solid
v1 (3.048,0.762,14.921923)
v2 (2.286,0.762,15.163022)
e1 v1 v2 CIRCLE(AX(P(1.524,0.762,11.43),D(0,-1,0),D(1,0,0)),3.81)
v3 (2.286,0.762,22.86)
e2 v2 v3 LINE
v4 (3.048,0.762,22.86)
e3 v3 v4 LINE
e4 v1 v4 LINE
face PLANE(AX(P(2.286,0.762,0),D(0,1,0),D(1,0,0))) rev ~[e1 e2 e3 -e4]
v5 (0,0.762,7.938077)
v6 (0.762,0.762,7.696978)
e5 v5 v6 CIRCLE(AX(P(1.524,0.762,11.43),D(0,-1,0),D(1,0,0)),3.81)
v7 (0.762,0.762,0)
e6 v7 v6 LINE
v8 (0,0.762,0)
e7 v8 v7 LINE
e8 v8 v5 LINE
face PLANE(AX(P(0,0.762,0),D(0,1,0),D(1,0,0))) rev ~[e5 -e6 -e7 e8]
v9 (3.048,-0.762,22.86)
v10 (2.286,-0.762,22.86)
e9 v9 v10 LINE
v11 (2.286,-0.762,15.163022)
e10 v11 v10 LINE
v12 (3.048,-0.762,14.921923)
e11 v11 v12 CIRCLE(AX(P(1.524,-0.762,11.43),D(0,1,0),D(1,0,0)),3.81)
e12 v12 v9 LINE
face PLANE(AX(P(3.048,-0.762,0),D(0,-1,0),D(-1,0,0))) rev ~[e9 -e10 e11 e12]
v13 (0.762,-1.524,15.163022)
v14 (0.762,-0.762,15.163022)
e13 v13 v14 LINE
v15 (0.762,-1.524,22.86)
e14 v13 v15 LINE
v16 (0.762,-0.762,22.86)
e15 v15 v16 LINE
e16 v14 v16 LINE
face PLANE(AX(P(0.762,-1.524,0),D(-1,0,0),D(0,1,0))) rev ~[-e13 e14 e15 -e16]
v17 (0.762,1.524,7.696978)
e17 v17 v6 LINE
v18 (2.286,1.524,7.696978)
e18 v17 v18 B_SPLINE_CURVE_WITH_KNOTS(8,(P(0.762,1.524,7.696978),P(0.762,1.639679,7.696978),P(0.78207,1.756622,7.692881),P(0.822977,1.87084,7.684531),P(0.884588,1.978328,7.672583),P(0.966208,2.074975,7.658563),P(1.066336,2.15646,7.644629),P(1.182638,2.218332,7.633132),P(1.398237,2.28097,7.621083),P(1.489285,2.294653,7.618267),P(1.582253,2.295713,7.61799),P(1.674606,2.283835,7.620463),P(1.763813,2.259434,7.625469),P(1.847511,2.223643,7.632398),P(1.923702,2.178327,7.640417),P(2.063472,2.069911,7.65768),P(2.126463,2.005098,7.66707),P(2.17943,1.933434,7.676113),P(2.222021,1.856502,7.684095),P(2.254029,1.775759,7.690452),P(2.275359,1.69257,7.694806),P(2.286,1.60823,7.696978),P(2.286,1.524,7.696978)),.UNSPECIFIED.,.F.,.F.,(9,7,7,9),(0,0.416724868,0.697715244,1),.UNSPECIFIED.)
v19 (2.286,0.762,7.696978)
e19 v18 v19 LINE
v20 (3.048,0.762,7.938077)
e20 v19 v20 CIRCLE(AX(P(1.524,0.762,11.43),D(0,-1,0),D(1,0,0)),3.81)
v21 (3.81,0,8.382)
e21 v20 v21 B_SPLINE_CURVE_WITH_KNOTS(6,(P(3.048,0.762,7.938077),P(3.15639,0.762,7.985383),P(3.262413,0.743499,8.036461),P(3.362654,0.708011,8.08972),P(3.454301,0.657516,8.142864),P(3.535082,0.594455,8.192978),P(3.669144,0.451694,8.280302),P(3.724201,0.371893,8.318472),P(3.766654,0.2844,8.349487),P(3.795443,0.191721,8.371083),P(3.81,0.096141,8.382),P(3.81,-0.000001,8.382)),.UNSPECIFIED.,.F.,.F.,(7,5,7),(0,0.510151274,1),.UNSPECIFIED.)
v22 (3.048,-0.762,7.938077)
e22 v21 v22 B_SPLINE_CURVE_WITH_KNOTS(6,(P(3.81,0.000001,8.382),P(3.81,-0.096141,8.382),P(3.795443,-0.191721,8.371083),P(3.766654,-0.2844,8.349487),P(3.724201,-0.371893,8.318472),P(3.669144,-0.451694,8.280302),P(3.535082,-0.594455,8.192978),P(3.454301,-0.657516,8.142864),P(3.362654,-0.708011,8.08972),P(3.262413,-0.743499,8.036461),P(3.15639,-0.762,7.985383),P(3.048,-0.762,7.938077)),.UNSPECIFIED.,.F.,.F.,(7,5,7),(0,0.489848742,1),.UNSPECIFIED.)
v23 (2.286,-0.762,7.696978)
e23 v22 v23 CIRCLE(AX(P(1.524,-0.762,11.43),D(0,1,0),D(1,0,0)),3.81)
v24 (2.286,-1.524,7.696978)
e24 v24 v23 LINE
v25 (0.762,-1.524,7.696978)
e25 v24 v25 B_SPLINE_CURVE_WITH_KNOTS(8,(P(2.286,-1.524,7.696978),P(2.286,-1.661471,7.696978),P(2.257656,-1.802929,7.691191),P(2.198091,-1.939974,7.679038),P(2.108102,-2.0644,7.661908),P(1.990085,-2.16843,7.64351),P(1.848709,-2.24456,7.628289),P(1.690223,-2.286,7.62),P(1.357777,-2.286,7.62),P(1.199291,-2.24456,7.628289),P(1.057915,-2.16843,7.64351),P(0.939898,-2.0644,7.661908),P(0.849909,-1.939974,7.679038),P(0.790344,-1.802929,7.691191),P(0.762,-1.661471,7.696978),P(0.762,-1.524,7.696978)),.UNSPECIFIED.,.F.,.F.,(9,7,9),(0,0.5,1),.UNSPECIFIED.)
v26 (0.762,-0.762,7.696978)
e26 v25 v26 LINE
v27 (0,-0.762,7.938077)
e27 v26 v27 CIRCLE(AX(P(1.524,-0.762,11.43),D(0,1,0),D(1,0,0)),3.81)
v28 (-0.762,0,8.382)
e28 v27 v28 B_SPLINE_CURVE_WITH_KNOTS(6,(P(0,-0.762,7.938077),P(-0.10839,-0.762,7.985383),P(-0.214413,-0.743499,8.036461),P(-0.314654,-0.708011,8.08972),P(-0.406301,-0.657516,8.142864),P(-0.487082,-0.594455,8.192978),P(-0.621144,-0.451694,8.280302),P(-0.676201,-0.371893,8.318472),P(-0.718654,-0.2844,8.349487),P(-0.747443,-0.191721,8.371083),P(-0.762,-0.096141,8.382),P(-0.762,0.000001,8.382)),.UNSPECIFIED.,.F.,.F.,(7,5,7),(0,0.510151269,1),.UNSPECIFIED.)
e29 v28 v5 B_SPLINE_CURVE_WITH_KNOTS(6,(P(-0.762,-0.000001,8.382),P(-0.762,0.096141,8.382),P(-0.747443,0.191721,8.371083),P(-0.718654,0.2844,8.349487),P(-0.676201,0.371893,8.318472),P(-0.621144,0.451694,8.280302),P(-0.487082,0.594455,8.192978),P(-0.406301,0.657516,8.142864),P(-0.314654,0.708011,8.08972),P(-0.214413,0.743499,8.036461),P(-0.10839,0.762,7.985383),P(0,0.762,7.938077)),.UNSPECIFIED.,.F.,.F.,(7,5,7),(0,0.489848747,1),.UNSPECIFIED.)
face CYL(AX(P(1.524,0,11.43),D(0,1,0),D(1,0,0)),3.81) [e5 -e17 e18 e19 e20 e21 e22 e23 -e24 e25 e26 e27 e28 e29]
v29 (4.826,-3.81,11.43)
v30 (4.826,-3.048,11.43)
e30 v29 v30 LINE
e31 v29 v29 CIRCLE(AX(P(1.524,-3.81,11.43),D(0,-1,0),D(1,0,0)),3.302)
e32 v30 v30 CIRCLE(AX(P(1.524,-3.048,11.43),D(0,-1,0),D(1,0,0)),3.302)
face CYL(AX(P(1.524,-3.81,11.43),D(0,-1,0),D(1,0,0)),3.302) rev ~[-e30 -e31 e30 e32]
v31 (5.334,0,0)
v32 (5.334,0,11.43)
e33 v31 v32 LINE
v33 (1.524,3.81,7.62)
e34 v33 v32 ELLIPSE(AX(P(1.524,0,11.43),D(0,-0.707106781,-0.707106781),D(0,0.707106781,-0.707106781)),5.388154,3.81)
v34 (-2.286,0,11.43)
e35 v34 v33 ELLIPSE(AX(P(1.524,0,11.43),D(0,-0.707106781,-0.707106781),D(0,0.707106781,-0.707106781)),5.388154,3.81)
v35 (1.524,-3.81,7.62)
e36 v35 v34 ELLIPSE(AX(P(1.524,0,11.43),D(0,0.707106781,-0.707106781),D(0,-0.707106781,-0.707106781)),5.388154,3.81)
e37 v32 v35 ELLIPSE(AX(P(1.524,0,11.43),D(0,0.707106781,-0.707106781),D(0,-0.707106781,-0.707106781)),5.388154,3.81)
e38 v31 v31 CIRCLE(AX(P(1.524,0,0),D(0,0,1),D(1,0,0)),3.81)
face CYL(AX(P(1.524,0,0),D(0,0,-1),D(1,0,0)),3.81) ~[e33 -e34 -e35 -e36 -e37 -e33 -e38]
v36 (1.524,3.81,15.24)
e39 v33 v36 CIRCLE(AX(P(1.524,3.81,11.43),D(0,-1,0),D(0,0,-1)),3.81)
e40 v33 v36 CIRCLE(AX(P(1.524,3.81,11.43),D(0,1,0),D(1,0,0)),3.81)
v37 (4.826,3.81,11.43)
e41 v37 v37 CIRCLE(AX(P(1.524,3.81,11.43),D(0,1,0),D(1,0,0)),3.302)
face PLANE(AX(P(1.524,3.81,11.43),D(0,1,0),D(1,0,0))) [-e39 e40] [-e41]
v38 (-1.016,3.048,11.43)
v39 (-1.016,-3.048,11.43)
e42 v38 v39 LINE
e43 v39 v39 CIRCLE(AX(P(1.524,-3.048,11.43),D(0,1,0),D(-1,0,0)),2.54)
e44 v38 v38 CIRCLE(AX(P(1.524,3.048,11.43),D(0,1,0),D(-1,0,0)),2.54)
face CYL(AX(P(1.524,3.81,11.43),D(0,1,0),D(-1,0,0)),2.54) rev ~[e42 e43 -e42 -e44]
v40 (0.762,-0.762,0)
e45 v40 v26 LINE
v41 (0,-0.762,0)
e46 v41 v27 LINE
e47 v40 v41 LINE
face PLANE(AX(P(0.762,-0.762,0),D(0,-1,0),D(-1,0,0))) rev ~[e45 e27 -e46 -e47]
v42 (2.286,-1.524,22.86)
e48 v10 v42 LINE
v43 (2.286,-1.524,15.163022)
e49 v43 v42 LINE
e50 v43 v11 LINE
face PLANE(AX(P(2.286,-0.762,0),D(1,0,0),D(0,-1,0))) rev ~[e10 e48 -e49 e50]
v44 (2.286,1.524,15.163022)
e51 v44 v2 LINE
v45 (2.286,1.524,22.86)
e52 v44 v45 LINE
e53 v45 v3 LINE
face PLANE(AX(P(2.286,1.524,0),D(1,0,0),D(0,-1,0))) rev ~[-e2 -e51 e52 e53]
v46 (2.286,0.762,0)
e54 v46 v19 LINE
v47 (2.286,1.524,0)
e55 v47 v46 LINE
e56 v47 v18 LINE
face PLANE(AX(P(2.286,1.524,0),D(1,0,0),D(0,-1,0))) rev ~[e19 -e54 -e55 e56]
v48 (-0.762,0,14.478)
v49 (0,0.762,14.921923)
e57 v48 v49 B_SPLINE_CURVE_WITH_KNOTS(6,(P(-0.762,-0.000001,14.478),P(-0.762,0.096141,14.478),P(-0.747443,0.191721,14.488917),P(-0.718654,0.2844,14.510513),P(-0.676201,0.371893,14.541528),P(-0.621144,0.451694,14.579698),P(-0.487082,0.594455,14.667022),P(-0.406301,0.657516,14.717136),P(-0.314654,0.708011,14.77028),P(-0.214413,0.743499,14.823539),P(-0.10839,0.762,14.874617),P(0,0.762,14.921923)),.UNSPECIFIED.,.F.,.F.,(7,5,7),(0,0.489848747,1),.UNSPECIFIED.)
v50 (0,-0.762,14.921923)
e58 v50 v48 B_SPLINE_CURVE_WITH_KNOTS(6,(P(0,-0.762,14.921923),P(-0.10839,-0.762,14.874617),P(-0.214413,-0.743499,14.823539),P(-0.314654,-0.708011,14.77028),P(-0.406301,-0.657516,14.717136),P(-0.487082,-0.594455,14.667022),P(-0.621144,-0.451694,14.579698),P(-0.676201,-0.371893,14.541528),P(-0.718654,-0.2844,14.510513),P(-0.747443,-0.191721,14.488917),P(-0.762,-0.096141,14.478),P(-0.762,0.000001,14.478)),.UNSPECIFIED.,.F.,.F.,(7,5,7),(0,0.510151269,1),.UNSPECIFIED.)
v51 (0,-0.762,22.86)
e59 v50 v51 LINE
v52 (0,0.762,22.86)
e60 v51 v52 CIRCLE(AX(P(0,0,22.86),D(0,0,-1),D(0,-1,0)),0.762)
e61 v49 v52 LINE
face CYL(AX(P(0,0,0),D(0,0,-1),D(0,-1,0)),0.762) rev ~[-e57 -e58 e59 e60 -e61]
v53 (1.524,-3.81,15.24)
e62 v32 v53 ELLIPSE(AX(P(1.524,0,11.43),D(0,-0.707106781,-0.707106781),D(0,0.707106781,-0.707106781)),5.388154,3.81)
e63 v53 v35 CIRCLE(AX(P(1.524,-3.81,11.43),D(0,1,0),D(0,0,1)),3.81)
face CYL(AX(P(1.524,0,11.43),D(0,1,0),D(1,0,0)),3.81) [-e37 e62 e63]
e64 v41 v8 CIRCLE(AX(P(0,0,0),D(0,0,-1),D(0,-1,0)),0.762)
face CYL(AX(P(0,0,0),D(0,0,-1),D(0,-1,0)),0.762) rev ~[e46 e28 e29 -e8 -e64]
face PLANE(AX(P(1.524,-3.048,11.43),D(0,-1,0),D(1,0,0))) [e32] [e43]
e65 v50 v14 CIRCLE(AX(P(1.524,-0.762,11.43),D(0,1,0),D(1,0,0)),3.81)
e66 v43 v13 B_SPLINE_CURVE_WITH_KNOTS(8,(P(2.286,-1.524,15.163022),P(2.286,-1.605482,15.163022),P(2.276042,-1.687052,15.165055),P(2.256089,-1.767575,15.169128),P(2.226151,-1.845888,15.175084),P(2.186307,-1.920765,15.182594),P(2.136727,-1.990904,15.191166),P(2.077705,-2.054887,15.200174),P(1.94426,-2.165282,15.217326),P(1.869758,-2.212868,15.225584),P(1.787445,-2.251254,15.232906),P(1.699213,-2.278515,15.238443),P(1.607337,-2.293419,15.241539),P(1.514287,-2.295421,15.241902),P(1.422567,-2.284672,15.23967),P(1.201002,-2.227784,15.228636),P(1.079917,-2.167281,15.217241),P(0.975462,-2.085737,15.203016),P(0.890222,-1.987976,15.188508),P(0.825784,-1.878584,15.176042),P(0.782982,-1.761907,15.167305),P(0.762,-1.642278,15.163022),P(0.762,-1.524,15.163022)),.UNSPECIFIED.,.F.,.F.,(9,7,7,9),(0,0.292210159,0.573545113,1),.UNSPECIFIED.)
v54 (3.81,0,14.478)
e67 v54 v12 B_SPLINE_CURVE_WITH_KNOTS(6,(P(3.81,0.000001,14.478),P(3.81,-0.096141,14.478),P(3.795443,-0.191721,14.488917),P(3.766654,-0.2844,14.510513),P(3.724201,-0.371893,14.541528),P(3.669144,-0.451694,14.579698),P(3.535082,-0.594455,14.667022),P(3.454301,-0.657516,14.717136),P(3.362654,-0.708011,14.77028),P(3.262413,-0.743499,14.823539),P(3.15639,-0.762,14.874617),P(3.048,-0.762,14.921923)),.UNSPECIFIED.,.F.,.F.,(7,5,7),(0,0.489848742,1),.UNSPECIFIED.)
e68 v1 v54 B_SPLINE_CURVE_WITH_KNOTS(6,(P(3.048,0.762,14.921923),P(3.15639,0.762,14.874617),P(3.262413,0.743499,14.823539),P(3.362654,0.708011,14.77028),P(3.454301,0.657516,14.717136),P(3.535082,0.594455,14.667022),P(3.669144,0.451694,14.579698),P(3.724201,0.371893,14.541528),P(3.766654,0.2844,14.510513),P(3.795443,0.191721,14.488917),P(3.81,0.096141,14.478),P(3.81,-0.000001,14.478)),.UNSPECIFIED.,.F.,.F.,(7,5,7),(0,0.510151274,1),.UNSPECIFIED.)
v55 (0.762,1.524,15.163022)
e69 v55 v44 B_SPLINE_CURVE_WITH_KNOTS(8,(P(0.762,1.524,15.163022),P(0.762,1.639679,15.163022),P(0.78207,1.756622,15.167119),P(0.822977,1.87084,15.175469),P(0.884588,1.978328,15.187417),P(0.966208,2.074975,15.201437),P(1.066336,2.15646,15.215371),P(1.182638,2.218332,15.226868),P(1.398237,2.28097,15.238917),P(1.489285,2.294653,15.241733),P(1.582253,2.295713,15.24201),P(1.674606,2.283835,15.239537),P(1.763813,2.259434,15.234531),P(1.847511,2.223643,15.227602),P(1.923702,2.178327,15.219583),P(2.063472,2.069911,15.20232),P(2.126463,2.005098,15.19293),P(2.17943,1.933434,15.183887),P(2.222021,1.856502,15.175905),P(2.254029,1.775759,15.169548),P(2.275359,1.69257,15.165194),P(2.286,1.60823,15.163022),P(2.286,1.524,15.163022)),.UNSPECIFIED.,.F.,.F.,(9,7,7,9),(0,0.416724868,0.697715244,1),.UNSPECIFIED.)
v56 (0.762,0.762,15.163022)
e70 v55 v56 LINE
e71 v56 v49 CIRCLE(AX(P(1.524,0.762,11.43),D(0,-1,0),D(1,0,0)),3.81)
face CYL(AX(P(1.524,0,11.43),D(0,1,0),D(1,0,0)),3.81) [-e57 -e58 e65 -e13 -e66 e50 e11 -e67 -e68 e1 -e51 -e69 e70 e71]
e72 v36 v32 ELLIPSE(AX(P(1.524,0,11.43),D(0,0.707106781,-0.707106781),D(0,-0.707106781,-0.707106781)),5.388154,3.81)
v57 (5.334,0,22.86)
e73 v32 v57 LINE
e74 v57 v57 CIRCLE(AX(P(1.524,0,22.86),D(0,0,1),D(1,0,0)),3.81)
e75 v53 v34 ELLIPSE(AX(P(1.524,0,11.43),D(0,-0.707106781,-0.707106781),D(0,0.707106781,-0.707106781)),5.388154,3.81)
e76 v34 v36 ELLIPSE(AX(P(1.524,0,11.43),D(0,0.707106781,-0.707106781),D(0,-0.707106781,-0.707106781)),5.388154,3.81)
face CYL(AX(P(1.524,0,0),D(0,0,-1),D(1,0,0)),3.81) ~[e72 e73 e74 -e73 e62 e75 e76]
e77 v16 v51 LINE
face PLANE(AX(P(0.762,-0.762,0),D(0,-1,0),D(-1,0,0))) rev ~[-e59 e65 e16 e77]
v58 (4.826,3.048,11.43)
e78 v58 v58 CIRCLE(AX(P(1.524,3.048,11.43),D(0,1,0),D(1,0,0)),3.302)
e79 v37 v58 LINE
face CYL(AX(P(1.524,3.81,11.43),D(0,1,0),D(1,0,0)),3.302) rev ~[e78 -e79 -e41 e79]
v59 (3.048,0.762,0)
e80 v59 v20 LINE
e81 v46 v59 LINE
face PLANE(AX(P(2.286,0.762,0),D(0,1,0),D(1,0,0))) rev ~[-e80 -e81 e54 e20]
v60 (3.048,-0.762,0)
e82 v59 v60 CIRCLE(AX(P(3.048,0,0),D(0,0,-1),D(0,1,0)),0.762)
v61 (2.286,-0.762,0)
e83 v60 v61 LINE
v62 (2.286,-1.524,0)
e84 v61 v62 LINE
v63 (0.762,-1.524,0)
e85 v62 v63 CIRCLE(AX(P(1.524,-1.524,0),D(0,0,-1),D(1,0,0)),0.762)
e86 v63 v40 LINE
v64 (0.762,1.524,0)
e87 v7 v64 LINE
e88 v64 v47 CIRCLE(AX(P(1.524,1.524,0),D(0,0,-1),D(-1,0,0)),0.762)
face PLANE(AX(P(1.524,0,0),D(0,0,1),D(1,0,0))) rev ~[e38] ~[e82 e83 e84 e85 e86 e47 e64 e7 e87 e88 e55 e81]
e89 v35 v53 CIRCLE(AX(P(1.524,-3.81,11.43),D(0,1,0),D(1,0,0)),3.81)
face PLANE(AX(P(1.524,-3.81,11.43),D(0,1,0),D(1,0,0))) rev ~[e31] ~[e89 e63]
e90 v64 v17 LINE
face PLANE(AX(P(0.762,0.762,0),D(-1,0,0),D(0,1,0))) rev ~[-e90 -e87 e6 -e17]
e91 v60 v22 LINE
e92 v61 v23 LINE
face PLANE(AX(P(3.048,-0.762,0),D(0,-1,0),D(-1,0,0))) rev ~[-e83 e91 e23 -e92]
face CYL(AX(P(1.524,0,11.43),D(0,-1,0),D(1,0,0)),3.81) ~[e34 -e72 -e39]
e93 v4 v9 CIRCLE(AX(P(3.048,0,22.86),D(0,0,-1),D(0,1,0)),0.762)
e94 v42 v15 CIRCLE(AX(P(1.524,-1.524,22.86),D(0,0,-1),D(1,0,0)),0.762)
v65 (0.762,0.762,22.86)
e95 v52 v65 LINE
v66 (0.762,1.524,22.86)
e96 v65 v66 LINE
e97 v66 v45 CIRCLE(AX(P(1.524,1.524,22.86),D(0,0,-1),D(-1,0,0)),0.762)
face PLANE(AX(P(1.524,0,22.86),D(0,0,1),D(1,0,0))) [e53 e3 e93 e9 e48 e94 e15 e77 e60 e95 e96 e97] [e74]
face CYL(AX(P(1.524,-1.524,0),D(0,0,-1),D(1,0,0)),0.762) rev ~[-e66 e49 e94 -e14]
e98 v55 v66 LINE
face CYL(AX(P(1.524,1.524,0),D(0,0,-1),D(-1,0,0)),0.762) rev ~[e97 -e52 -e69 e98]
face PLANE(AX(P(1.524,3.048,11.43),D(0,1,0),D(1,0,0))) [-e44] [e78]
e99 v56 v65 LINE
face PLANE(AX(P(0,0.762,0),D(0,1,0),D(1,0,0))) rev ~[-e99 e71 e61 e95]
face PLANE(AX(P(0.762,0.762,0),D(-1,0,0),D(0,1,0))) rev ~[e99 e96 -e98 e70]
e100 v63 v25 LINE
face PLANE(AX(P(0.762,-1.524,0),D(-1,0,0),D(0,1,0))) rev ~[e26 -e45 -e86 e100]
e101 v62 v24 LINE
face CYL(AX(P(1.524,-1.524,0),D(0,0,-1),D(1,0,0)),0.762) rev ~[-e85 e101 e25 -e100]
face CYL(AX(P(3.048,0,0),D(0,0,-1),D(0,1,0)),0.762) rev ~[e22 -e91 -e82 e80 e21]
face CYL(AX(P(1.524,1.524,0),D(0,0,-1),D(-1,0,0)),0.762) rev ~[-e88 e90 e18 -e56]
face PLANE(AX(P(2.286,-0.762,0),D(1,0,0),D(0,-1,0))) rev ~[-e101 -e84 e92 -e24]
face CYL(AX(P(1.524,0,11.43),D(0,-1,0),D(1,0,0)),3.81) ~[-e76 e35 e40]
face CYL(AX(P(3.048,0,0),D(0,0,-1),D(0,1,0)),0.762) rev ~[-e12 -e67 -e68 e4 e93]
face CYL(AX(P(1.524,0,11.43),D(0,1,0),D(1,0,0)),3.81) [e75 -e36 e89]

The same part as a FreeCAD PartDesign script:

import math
import FreeCAD as App
import Part
import Sketcher

V = App.Vector
Q = App.Units.Quantity

doc = App.newDocument("Part")
body = doc.addObject("PartDesign::Body", "Body")

sketch1 = body.newObject("Sketcher::SketchObject", "Sketch")
sketch1.AttachmentSupport = (doc.getObject("XY_Plane"), [""])
sketch1.MapMode = "FlatFace"
sketch1.addGeometry([
    Part.Circle(V(1.5, 0, 0), V(0, 0, 1), 3.8),
    Part.LineSegment(V(0.8, -0.8, 0), V(0, -0.8, 0)),
    Part.ArcOfCircle(Part.Circle(V(0, 0, 0), V(0, 0, 1), 0.8), math.radians(90), math.radians(270)),
    Part.LineSegment(V(0, 0.8, 0), V(0.8, 0.8, 0)),
    Part.LineSegment(V(0.8, 0.8, 0), V(0.8, 1.5, 0)),
    Part.ArcOfCircle(Part.Circle(V(1.5, 1.5, 0), V(0, 0, 1), 0.8), math.radians(0), math.radians(180)),
    Part.LineSegment(V(2.3, 1.5, 0), V(2.3, 0.8, 0)),
    Part.LineSegment(V(2.3, 0.8, 0), V(3, 0.8, 0)),
    Part.ArcOfCircle(Part.Circle(V(3, 0, 0), V(0, 0, 1), 0.8), math.radians(-90), math.radians(90)),
    Part.LineSegment(V(3, -0.8, 0), V(2.3, -0.8, 0)),
    Part.LineSegment(V(2.3, -0.8, 0), V(2.3, -1.5, 0)),
    Part.ArcOfCircle(Part.Circle(V(1.5, -1.5, 0), V(0, 0, 1), 0.8), math.radians(180), math.radians(360)),
    Part.LineSegment(V(0.8, -1.5, 0), V(0.8, -0.8, 0)),
], False)
sketch1.addConstraint([
    Sketcher.Constraint("Tangent", 1, 2, 2, 2),
    Sketcher.Constraint("Tangent", 2, 1, 3, 1),
    Sketcher.Constraint("Coincident", 3, 2, 4, 1),
    Sketcher.Constraint("Tangent", 4, 2, 5, 2),
    Sketcher.Constraint("Tangent", 5, 1, 6, 1),
    Sketcher.Constraint("Coincident", 6, 2, 7, 1),
    Sketcher.Constraint("Tangent", 7, 2, 8, 2),
    Sketcher.Constraint("Tangent", 8, 1, 9, 1),
    Sketcher.Constraint("Coincident", 9, 2, 10, 1),
    Sketcher.Constraint("Tangent", 10, 2, 11, 2),
    Sketcher.Constraint("Tangent", 11, 1, 12, 1),
    Sketcher.Constraint("Coincident", 12, 2, 1, 1),
    Sketcher.Constraint("Horizontal", 1),
    Sketcher.Constraint("Horizontal", 3),
    Sketcher.Constraint("Vertical", 4),
    Sketcher.Constraint("Vertical", 6),
    Sketcher.Constraint("Horizontal", 7),
    Sketcher.Constraint("Horizontal", 9),
    Sketcher.Constraint("Vertical", 10),
    Sketcher.Constraint("Vertical", 12),
    Sketcher.Constraint("Coincident", 2, 3, -1, 1),
    Sketcher.Constraint("Equal", 2, 5),
    Sketcher.Constraint("Equal", 5, 8),
    Sketcher.Constraint("Equal", 8, 11),
    Sketcher.Constraint("Symmetric", 5, 3, 11, 3, -1),
    Sketcher.Constraint("PointOnObject", 0, 3, -1),
    Sketcher.Constraint("PointOnObject", 8, 3, -1),
    Sketcher.Constraint("Vertical", 0, 3, 5, 3),
    Sketcher.Constraint("Equal", 3, 7),
    Sketcher.Constraint("Equal", 9, 4),
    Sketcher.Constraint("Diameter", 0, Q("0.3 in")),
    Sketcher.Constraint("Radius", 2, Q("0.03 in")),
    Sketcher.Constraint("DistanceX", 1, 2, 1, 1, Q("0.03 in")),
])
pad1 = body.newObject("PartDesign::Pad", "Pad")
pad1.Profile = sketch1
pad1.Length = Q("0.9 in")

sketch2 = body.newObject("Sketcher::SketchObject", "Sketch001")
sketch2.AttachmentSupport = (doc.getObject("XZ_Plane"), [""])
sketch2.MapMode = "FlatFace"
sketch2.addGeometry(Part.Circle(V(1.5, 11.4, 0), V(0, 0, 1), 3.8), False)
sketch2.addConstraint([
    Sketcher.Constraint("Diameter", 0, Q("0.3 in")),
    Sketcher.Constraint("DistanceX", -1, 1, 0, 3, Q("0.06 in")),
    Sketcher.Constraint("DistanceY", -1, 1, 0, 3, Q("0.45 in")),
])
pad2 = body.newObject("PartDesign::Pad", "Pad001")
pad2.Profile = sketch2
pad2.Type = "TwoLengths"
pad2.Length = Q("0.15 in")
pad2.Length2 = Q("0.15 in")
pad2.Reversed = True

sketch3 = body.newObject("Sketcher::SketchObject", "Sketch002")
sketch3.AttachmentSupport = (doc.getObject("XZ_Plane"), [""])
sketch3.MapMode = "FlatFace"
sketch3.AttachmentOffset = App.Placement(V(0, 0, -0.15 * 25.4), App.Rotation())
sketch3.addGeometry(Part.Circle(V(1.5, 11.4, 0), V(0, 0, 1), 2.5), False)
sketch3.addConstraint([
    Sketcher.Constraint("Diameter", 0, Q("0.2 in")),
    Sketcher.Constraint("DistanceX", -1, 1, 0, 3, Q("0.06 in")),
    Sketcher.Constraint("DistanceY", -1, 1, 0, 3, Q("0.45 in")),
])
pocket1 = body.newObject("PartDesign::Pocket", "Pocket")
pocket1.Profile = sketch3
pocket1.Type = "ThroughAll"
pocket1.Reversed = True

sketch4 = body.newObject("Sketcher::SketchObject", "Sketch003")
sketch4.AttachmentSupport = (doc.getObject("XZ_Plane"), [""])
sketch4.MapMode = "FlatFace"
sketch4.AttachmentOffset = App.Placement(V(0, 0, -0.15 * 25.4), App.Rotation())
sketch4.addGeometry(Part.Circle(V(1.5, 11.4, 0), V(0, 0, 1), 3.3), False)
sketch4.addConstraint([
    Sketcher.Constraint("Diameter", 0, Q("0.26 in")),
    Sketcher.Constraint("DistanceX", -1, 1, 0, 3, Q("0.06 in")),
    Sketcher.Constraint("DistanceY", -1, 1, 0, 3, Q("0.45 in")),
])
pocket2 = body.newObject("PartDesign::Pocket", "Pocket001")
pocket2.Profile = sketch4
pocket2.Length = Q("0.03 in")
pocket2.Reversed = True

sketch5 = body.newObject("Sketcher::SketchObject", "Sketch004")
sketch5.AttachmentSupport = (doc.getObject("XZ_Plane"), [""])
sketch5.MapMode = "FlatFace"
sketch5.AttachmentOffset = App.Placement(V(0, 0, 0.15 * 25.4), App.Rotation())
sketch5.addGeometry(Part.Circle(V(1.5, 11.4, 0), V(0, 0, 1), 3.3), False)
sketch5.addConstraint([
    Sketcher.Constraint("Diameter", 0, Q("0.26 in")),
    Sketcher.Constraint("DistanceX", -1, 1, 0, 3, Q("0.06 in")),
    Sketcher.Constraint("DistanceY", -1, 1, 0, 3, Q("0.45 in")),
])
pocket3 = body.newObject("PartDesign::Pocket", "Pocket002")
pocket3.Profile = sketch5
pocket3.Length = Q("0.03 in")

doc.recompute()
